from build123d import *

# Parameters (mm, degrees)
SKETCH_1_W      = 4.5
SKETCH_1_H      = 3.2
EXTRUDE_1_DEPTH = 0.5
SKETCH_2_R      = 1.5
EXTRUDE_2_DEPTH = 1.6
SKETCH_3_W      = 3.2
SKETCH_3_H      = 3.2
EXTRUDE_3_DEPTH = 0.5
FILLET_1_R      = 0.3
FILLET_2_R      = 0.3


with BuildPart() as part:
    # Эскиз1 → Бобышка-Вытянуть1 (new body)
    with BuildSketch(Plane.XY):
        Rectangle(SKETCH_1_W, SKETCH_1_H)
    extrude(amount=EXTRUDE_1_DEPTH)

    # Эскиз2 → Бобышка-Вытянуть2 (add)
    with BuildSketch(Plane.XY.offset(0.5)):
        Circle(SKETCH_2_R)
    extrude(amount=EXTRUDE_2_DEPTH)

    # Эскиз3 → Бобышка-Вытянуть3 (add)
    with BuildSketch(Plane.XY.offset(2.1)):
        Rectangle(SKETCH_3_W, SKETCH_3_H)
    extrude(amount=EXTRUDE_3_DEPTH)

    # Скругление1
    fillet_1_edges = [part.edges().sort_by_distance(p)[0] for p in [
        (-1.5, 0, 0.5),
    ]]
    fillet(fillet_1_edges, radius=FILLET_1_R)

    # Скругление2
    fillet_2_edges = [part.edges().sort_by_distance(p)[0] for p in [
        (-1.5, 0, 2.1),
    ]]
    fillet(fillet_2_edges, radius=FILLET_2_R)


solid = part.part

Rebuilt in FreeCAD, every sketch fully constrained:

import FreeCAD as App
import Part
import Sketcher
from FreeCAD import Vector


def edges_at(feature, points):
    """Names of the edges that pass closest to the given points."""
    edges = feature.Shape.Edges
    near = lambda p: min(range(len(edges)), key=lambda i: edges[i].distToShape(Part.Vertex(*p))[0])
    return sorted({f"Edge{near(p) + 1}" for p in points})


def add_polygon(sketch, points):
    """Adds a closed chain of lines whose ends are joined by coincident constraints."""
    first, n = sketch.GeometryCount, len(points)
    for a, b in zip(points, points[1:] + points[:1]):
        sketch.addGeometry(Part.LineSegment(App.Vector(*a, 0), App.Vector(*b, 0)), False)
    for i in range(n):
        sketch.addConstraint(Sketcher.Constraint("Coincident", first + i, 2, first + (i + 1) % n, 1))

doc = App.newDocument("Part")
body = doc.addObject("PartDesign::Body", "Body")

# Sketch on XY plane
sketch1 = body.newObject("Sketcher::SketchObject", "Sketch")
sketch1.AttachmentSupport = (doc.getObject("XY_Plane"), [""])
sketch1.MapMode = "FlatFace"
add_polygon(sketch1, [(-2.2, 1.6), (-2.2, -1.6), (2.2, -1.6), (2.2, 1.6)])  # lines 0-3
sketch1.addConstraint([
    Sketcher.Constraint("Vertical", 0),
    Sketcher.Constraint("Horizontal", 1),
    Sketcher.Constraint("Vertical", 2),
    Sketcher.Constraint("Horizontal", 3),
    Sketcher.Constraint("Symmetric", 0, 2, 2, 2, -1, 1),
    Sketcher.Constraint("DistanceX", 1, 1, 1, 2, 4.5),
    Sketcher.Constraint("DistanceY", 0, 2, 0, 1, 3.2),
])
pad1 = body.newObject("PartDesign::Pad", "Pad")
pad1.Profile = sketch1
pad1.Length = 0.5

# Sketch on XY plane
sketch2 = body.newObject("Sketcher::SketchObject", "Sketch001")
sketch2.AttachmentSupport = (doc.getObject("XY_Plane"), [""])
sketch2.MapMode = "FlatFace"
sketch2.AttachmentOffset = App.Placement(Vector(0, 0, 0.5), App.Rotation())
sketch2.addGeometry(Part.Circle(Vector(0, 0, 0), Vector(0, 0, 1), 1.5), False)
sketch2.addConstraint([
    Sketcher.Constraint("Coincident", 0, 3, -1, 1),
    Sketcher.Constraint("Diameter", 0, 3.0),
])
pad2 = body.newObject("PartDesign::Pad", "Pad001")
pad2.Profile = sketch2
pad2.Length = 1.6

# Sketch on XY plane
sketch3 = body.newObject("Sketcher::SketchObject", "Sketch002")
sketch3.AttachmentSupport = (doc.getObject("XY_Plane"), [""])
sketch3.MapMode = "FlatFace"
sketch3.AttachmentOffset = App.Placement(Vector(0, 0, 2.1), App.Rotation())
add_polygon(sketch3, [(-1.6, 1.6), (-1.6, -1.6), (1.6, -1.6), (1.6, 1.6)])  # lines 0-3
sketch3.addConstraint([
    Sketcher.Constraint("Vertical", 0),
    Sketcher.Constraint("Horizontal", 1),
    Sketcher.Constraint("Vertical", 2),
    Sketcher.Constraint("Horizontal", 3),
    Sketcher.Constraint("Symmetric", 0, 2, 2, 2, -1, 1),
    Sketcher.Constraint("Equal", 3, 0),
    Sketcher.Constraint("DistanceX", 1, 1, 1, 2, 3.2),
])
pad3 = body.newObject("PartDesign::Pad", "Pad002")
pad3.Profile = sketch3
pad3.Length = 0.5
doc.recompute()

fillet = body.newObject("PartDesign::Fillet", "Fillet")
fillet.Base = (pad3, edges_at(pad3, [(-1.5, 0, 0.5)]))
fillet.Radius = 0.3
doc.recompute()

fillet2 = body.newObject("PartDesign::Fillet", "Fillet001")
fillet2.Base = (fillet, edges_at(fillet, [(-1.5, 0, 2.1)]))
fillet2.Radius = 0.3

doc.recompute()
